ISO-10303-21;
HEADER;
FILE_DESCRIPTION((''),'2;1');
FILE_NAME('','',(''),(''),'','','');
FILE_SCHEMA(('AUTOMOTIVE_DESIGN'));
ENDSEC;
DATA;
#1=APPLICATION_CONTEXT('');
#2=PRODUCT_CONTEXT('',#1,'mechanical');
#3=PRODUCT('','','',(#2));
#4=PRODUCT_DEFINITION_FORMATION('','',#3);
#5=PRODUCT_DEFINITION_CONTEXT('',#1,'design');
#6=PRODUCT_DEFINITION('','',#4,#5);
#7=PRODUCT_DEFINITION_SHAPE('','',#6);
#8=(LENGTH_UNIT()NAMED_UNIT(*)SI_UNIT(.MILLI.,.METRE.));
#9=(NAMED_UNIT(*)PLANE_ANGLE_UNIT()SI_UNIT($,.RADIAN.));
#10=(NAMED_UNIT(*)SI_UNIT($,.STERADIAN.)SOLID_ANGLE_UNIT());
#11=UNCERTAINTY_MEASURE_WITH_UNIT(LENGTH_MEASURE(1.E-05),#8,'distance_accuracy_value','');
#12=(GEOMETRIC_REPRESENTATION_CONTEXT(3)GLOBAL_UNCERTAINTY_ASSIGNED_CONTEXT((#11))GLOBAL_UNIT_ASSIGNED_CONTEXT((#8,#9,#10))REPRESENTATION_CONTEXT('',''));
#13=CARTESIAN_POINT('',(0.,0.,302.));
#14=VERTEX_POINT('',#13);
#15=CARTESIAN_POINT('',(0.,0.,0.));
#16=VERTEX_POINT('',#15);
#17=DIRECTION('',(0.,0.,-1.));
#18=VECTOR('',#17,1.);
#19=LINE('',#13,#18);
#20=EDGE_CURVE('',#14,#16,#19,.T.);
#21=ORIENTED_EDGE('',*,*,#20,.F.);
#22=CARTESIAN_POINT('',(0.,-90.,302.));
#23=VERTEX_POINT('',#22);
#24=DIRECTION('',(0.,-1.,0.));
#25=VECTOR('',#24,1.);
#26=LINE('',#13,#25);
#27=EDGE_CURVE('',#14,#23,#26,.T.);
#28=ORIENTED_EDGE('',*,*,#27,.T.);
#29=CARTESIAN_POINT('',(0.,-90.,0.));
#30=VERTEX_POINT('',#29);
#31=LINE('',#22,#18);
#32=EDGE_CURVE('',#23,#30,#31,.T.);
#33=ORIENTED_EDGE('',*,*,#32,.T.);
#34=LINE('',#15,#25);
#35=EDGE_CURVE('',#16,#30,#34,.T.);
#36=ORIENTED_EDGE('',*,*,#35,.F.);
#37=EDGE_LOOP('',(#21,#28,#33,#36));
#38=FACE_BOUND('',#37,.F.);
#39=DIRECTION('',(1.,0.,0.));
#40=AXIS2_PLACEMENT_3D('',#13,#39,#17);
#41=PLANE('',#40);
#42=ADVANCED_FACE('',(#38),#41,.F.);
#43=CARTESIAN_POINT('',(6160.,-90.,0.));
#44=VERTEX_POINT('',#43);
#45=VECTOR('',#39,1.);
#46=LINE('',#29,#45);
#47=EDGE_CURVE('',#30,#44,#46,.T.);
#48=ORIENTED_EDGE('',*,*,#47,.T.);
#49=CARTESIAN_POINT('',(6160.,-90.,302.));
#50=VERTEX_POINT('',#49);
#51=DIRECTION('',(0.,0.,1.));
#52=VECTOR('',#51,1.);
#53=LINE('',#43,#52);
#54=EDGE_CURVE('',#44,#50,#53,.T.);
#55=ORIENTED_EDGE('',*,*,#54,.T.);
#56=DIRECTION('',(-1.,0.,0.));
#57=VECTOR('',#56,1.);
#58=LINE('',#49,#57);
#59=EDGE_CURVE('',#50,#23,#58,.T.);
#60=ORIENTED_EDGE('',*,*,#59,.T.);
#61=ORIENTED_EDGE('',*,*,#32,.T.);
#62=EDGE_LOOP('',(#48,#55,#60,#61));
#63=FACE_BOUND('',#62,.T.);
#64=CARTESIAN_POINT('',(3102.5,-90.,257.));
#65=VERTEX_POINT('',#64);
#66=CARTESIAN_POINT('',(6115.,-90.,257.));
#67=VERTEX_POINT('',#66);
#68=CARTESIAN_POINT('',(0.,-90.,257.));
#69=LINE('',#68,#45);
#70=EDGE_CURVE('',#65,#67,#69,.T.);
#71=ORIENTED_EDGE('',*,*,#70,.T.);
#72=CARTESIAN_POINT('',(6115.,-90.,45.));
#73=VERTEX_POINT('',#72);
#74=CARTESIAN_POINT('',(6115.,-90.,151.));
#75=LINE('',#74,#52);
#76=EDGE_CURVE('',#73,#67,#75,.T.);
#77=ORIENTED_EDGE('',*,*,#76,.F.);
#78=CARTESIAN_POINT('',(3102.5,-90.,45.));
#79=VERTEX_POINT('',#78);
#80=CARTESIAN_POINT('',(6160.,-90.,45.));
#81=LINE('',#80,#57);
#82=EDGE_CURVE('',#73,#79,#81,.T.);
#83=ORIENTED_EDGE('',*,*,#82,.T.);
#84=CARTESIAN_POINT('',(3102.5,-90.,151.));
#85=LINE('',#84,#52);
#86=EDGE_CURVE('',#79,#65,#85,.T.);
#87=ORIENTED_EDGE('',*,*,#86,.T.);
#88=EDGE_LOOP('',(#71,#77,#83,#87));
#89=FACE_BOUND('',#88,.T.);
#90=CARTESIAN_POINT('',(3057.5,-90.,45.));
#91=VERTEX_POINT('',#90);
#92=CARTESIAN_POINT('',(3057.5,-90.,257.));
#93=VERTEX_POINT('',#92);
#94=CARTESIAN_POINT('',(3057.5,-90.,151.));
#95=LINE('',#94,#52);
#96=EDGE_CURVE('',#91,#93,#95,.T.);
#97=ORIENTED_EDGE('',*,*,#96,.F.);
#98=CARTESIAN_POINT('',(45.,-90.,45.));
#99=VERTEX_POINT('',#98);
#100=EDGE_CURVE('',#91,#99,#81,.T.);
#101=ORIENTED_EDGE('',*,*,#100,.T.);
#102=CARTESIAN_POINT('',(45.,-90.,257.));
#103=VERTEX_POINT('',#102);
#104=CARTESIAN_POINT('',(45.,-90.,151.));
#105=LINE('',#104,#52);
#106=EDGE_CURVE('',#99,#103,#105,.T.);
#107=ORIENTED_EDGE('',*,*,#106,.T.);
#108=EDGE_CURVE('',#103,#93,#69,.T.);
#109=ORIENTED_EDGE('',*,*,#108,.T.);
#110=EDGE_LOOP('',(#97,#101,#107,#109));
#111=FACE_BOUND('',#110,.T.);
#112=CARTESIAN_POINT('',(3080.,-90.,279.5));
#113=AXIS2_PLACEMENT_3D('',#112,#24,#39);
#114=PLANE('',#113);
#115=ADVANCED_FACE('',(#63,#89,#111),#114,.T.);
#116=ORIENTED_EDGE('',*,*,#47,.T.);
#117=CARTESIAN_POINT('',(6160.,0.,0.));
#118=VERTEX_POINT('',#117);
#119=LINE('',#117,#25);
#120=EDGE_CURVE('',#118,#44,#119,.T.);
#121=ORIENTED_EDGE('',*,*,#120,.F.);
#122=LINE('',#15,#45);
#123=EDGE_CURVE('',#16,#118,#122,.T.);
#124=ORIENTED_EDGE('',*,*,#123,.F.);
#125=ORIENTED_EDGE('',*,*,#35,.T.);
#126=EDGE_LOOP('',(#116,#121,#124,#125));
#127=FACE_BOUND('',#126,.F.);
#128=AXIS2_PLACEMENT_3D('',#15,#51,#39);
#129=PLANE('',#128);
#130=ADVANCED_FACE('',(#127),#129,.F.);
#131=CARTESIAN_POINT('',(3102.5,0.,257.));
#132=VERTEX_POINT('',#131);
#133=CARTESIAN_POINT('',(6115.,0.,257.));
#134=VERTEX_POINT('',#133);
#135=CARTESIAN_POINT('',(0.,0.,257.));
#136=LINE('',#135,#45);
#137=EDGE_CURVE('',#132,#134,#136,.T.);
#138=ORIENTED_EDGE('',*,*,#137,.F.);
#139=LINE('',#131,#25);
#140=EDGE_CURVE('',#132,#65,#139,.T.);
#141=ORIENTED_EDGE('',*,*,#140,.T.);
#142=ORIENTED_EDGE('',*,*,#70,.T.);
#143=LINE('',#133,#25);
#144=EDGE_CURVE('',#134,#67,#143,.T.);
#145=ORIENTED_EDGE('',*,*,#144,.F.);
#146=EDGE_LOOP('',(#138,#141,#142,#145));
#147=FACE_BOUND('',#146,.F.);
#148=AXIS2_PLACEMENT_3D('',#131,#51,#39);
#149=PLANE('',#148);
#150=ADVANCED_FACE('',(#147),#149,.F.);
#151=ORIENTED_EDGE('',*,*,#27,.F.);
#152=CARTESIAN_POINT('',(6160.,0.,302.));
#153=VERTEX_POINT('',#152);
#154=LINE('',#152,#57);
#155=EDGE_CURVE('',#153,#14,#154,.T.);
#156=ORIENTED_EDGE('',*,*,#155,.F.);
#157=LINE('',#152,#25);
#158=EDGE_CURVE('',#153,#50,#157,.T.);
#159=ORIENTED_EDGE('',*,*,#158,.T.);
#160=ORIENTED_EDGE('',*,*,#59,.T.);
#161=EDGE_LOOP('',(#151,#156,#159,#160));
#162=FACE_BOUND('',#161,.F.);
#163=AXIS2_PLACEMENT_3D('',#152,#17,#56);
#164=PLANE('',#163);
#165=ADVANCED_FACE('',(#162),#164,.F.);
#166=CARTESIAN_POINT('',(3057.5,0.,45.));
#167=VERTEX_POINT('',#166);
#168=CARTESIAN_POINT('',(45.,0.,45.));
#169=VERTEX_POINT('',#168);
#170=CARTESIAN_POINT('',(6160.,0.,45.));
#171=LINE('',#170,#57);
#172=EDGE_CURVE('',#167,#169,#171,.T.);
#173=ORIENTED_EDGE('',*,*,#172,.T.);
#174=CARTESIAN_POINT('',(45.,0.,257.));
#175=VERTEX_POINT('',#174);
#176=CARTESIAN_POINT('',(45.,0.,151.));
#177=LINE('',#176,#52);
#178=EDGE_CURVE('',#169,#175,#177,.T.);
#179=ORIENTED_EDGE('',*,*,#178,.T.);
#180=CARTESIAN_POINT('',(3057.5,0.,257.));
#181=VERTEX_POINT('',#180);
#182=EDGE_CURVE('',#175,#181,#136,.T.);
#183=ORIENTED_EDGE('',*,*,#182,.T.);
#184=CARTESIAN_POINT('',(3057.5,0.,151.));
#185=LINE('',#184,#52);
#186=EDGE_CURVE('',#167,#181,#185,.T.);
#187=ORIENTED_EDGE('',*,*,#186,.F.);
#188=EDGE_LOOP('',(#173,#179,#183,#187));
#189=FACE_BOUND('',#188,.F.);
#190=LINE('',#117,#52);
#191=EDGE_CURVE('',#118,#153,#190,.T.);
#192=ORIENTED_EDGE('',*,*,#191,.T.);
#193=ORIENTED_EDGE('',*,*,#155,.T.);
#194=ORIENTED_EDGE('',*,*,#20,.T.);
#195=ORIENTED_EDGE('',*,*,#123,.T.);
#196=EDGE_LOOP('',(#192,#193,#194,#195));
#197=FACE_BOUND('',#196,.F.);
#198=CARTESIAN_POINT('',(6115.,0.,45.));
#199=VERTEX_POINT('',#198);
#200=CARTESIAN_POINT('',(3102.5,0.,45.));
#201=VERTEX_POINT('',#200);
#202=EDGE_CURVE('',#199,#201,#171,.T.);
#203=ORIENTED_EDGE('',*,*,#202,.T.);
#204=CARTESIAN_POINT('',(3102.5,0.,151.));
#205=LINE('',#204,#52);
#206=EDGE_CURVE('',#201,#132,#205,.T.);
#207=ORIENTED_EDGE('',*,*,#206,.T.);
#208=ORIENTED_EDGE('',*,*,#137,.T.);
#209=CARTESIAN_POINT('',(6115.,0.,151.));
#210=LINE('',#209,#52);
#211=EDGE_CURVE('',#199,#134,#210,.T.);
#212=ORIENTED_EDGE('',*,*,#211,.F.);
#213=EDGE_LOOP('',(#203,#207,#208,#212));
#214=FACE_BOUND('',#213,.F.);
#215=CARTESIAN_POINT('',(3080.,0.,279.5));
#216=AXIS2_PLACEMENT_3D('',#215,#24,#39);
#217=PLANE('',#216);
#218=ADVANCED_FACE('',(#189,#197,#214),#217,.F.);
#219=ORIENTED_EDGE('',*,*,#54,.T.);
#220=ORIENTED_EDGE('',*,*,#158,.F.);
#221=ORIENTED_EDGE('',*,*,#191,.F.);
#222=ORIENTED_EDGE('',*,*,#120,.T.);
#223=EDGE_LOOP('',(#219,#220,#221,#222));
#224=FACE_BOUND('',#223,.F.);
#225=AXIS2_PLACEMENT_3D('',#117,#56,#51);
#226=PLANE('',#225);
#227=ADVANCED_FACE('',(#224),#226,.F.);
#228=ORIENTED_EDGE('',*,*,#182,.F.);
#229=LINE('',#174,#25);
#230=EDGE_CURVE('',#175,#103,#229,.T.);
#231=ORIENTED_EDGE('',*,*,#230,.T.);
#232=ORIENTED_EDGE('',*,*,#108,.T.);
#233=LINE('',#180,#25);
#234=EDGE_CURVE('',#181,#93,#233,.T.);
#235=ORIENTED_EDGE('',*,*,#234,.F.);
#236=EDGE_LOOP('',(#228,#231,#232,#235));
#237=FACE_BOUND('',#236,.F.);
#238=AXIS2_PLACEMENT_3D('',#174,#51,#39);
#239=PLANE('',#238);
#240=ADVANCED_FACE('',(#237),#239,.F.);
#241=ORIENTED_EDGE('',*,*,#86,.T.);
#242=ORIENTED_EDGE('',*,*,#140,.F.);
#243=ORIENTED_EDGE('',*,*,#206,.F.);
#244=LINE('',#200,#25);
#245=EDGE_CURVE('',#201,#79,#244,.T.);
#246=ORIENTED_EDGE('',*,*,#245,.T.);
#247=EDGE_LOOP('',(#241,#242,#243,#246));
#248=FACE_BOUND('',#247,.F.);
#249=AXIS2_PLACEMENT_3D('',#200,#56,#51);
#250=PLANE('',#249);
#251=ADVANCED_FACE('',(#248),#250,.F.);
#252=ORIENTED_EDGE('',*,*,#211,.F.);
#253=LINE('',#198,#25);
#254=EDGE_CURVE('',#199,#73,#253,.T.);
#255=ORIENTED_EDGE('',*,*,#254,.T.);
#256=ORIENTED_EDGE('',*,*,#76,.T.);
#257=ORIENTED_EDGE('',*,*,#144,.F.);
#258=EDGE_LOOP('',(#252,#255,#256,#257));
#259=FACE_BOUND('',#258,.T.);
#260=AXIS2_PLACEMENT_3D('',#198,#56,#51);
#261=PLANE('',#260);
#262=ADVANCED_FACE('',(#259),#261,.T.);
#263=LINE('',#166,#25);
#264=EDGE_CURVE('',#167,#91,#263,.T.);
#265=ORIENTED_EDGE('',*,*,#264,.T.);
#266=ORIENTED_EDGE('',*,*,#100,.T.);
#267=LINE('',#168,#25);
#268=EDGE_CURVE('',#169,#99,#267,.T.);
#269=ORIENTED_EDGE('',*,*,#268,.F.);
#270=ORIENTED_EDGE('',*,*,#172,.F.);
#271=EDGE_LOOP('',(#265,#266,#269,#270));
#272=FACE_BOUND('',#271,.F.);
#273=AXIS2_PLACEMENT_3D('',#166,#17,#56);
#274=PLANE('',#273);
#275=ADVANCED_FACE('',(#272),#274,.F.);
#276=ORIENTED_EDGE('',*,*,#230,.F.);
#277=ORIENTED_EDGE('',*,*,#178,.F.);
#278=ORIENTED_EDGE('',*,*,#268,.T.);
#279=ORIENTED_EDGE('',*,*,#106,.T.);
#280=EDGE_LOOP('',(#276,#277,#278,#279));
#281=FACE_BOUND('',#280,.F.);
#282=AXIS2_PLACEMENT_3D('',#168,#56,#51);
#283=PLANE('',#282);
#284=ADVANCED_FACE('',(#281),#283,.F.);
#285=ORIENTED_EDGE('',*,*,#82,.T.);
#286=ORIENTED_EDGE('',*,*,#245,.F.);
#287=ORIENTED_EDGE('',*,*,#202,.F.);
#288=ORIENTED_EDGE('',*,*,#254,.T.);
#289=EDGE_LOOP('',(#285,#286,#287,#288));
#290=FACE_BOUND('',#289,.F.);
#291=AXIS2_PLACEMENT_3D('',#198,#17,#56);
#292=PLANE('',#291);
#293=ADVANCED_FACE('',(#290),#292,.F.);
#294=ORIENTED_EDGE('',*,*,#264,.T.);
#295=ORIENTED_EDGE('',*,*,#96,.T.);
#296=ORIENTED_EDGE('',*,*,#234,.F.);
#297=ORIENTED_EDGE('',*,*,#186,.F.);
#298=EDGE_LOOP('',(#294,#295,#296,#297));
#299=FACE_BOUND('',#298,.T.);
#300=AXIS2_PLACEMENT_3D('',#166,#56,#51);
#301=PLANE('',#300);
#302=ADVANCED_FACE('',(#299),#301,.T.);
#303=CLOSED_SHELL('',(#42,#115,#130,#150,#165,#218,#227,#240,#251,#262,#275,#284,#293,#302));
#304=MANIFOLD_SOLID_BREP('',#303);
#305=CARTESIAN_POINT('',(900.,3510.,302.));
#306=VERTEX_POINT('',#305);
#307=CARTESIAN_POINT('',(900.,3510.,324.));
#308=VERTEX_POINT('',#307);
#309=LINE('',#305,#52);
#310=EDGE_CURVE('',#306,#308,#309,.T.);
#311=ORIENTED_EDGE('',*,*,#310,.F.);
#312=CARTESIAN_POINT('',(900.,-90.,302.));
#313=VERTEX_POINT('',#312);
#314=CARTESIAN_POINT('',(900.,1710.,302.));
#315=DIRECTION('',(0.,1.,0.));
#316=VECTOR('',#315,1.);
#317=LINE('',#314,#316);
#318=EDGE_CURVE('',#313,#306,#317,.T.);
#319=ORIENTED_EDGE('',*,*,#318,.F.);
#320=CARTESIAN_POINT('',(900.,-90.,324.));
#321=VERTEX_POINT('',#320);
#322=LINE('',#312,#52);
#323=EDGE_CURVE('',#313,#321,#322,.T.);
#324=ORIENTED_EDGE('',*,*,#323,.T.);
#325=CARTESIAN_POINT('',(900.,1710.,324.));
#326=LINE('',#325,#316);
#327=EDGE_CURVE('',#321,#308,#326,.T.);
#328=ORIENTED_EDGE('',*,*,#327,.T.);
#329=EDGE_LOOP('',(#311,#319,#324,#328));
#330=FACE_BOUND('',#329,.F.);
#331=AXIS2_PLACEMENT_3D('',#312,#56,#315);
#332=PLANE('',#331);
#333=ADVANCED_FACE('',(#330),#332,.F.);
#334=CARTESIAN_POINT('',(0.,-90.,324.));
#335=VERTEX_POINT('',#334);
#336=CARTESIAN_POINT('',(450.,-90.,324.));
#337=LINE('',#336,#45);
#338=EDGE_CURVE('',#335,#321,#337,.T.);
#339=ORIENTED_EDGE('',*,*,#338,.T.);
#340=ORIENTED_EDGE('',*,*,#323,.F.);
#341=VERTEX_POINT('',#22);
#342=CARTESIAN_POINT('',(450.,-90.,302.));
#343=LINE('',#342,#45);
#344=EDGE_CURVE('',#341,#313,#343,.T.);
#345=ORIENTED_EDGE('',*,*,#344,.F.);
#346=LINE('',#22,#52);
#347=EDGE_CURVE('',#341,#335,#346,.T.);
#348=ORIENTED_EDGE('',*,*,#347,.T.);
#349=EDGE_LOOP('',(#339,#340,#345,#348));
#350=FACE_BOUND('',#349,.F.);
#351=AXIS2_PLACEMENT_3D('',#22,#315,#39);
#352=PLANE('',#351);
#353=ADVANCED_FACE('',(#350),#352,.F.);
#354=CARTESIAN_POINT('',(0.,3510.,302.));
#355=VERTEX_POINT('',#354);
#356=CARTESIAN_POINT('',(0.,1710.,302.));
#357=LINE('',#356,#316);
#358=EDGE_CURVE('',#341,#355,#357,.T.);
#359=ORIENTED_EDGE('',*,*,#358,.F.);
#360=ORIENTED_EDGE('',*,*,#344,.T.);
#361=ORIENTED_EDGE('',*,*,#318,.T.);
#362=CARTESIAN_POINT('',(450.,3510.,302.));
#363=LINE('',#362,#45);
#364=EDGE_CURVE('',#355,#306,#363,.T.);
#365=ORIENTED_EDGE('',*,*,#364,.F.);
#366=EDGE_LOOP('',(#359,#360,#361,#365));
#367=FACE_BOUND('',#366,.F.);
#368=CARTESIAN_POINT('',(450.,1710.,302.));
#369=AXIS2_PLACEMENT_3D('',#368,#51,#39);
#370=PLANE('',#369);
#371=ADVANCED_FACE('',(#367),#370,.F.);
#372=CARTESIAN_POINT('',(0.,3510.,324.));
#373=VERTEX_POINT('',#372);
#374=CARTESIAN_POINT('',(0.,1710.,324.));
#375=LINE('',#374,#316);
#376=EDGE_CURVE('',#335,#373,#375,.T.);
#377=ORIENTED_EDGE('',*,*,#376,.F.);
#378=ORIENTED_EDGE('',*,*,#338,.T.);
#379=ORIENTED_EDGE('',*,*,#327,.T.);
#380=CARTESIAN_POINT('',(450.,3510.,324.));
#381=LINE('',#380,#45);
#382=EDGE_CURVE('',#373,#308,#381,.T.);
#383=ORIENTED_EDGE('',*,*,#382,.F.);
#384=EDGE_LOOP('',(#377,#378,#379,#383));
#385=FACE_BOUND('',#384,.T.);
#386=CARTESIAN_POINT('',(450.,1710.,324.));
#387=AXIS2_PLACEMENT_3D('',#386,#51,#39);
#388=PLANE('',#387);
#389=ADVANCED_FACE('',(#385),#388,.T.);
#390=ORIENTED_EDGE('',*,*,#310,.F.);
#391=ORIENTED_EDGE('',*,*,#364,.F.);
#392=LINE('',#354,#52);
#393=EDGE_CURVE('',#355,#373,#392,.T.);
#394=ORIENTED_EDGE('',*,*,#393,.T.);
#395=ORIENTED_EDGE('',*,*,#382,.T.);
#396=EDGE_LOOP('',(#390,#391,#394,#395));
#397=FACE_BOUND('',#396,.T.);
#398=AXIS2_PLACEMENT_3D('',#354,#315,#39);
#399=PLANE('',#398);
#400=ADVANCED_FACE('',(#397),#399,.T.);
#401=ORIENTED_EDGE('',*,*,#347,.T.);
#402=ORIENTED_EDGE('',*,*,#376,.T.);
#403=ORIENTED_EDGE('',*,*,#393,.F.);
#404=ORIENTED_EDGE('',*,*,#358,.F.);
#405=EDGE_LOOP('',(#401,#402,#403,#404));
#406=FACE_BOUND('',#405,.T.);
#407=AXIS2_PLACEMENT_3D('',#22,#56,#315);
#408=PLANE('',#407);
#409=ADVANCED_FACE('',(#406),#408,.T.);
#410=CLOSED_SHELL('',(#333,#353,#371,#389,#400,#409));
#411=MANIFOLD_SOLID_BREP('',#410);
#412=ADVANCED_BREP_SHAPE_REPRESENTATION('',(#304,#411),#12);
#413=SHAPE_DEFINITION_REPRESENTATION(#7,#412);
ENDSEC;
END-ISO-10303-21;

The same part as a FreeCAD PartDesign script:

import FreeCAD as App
import Part
import Sketcher

V = App.Vector
Q = App.Units.Quantity

doc = App.newDocument("Part")
body = doc.addObject("PartDesign::Body", "Body")

sketch1 = body.newObject("Sketcher::SketchObject", "Sketch")
sketch1.AttachmentSupport = (doc.getObject("XZ_Plane"), [""])
sketch1.MapMode = "FlatFace"
sketch1.addGeometry(Part.LineSegment(V(0, 302, 0), V(0, 0, 0)), False)
sketch1.addGeometry(Part.LineSegment(V(0, 0, 0), V(6160, 0, 0)), False)
sketch1.addGeometry(Part.LineSegment(V(6160, 0, 0), V(6160, 302, 0)), False)
sketch1.addGeometry(Part.LineSegment(V(6160, 302, 0), V(0, 302, 0)), False)
sketch1.addGeometry(Part.LineSegment(V(6115, 45, 0), V(3102.5, 45, 0)), False)
sketch1.addGeometry(Part.LineSegment(V(3102.5, 45, 0), V(3102.5, 257, 0)), False)
sketch1.addGeometry(Part.LineSegment(V(3102.5, 257, 0), V(6115, 257, 0)), False)
sketch1.addGeometry(Part.LineSegment(V(6115, 257, 0), V(6115, 45, 0)), False)
sketch1.addGeometry(Part.LineSegment(V(3057.5, 45, 0), V(45, 45, 0)), False)
sketch1.addGeometry(Part.LineSegment(V(45, 45, 0), V(45, 257, 0)), False)
sketch1.addGeometry(Part.LineSegment(V(45, 257, 0), V(3057.5, 257, 0)), False)
sketch1.addGeometry(Part.LineSegment(V(3057.5, 257, 0), V(3057.5, 45, 0)), False)
sketch1.addConstraint(Sketcher.Constraint("Coincident", 0, 2, 1, 1))
sketch1.addConstraint(Sketcher.Constraint("Coincident", 1, 2, 2, 1))
sketch1.addConstraint(Sketcher.Constraint("Coincident", 2, 2, 3, 1))
sketch1.addConstraint(Sketcher.Constraint("Coincident", 3, 2, 0, 1))
sketch1.addConstraint(Sketcher.Constraint("Coincident", 4, 2, 5, 1))
sketch1.addConstraint(Sketcher.Constraint("Coincident", 5, 2, 6, 1))
sketch1.addConstraint(Sketcher.Constraint("Coincident", 6, 2, 7, 1))
sketch1.addConstraint(Sketcher.Constraint("Coincident", 7, 2, 4, 1))
sketch1.addConstraint(Sketcher.Constraint("Coincident", 8, 2, 9, 1))
sketch1.addConstraint(Sketcher.Constraint("Coincident", 9, 2, 10, 1))
sketch1.addConstraint(Sketcher.Constraint("Coincident", 10, 2, 11, 1))
sketch1.addConstraint(Sketcher.Constraint("Coincident", 11, 2, 8, 1))
sketch1.addConstraint(Sketcher.Constraint("Vertical", 0))
sketch1.addConstraint(Sketcher.Constraint("Horizontal", 1))
sketch1.addConstraint(Sketcher.Constraint("Vertical", 2))
sketch1.addConstraint(Sketcher.Constraint("Horizontal", 3))
sketch1.addConstraint(Sketcher.Constraint("Horizontal", 4))
sketch1.addConstraint(Sketcher.Constraint("Vertical", 5))
sketch1.addConstraint(Sketcher.Constraint("Horizontal", 6))
sketch1.addConstraint(Sketcher.Constraint("Vertical", 7))
sketch1.addConstraint(Sketcher.Constraint("Horizontal", 8))
sketch1.addConstraint(Sketcher.Constraint("Vertical", 9))
sketch1.addConstraint(Sketcher.Constraint("Horizontal", 10))
sketch1.addConstraint(Sketcher.Constraint("Vertical", 11))
sketch1.addConstraint(Sketcher.Constraint("Coincident", 0, 2, -1, 1))
sketch1.addConstraint(Sketcher.Constraint("Horizontal", 7, 2, 8, 2))
sketch1.addConstraint(Sketcher.Constraint("Horizontal", 6, 2, 9, 2))
sketch1.addConstraint(Sketcher.Constraint("Equal", 6, 8))
sketch1.addConstraint(Sketcher.Constraint("DistanceX", 1, 1, 1, 2, Q("6160 mm")))
sketch1.addConstraint(Sketcher.Constraint("DistanceY", 0, 2, 0, 1, Q("302 mm")))
sketch1.addConstraint(Sketcher.Constraint("DistanceY", 5, 1, 5, 2, Q("212 mm")))
sketch1.addConstraint(Sketcher.Constraint("DistanceX", 4, 2, 4, 1, Q("3012.5 mm")))
sketch1.addConstraint(Sketcher.Constraint("DistanceY", -1, 1, 4, 2, Q("45 mm")))
sketch1.addConstraint(Sketcher.Constraint("DistanceX", -1, 1, 6, 2, Q("6115 mm")))
sketch1.addConstraint(Sketcher.Constraint("DistanceX", -1, 1, 8, 2, Q("45 mm")))
pad1 = body.newObject("PartDesign::Pad", "Pad")
pad1.Profile = sketch1
pad1.Length = 90
body2 = doc.addObject("PartDesign::Body", "Body001")

sketch2 = body2.newObject("Sketcher::SketchObject", "Sketch001")
sketch2.AttachmentSupport = (doc.getObject("XY_Plane001"), [""])
sketch2.MapMode = "FlatFace"
sketch2.AttachmentOffset = App.Placement(V(0, 0, 302), App.Rotation())
sketch2.addGeometry(Part.LineSegment(V(0, 3510, 0), V(0, -90, 0)), False)
sketch2.addGeometry(Part.LineSegment(V(0, -90, 0), V(900, -90, 0)), False)
sketch2.addGeometry(Part.LineSegment(V(900, -90, 0), V(900, 3510, 0)), False)
sketch2.addGeometry(Part.LineSegment(V(900, 3510, 0), V(0, 3510, 0)), False)
sketch2.addConstraint(Sketcher.Constraint("Coincident", 0, 2, 1, 1))
sketch2.addConstraint(Sketcher.Constraint("Coincident", 1, 2, 2, 1))
sketch2.addConstraint(Sketcher.Constraint("Coincident", 2, 2, 3, 1))
sketch2.addConstraint(Sketcher.Constraint("Coincident", 3, 2, 0, 1))
sketch2.addConstraint(Sketcher.Constraint("Vertical", 0))
sketch2.addConstraint(Sketcher.Constraint("Horizontal", 1))
sketch2.addConstraint(Sketcher.Constraint("Vertical", 2))
sketch2.addConstraint(Sketcher.Constraint("Horizontal", 3))
sketch2.addConstraint(Sketcher.Constraint("PointOnObject", 0, 2, -2))
sketch2.addConstraint(Sketcher.Constraint("DistanceX", 1, 1, 1, 2, Q("900 mm")))
sketch2.addConstraint(Sketcher.Constraint("DistanceY", 0, 2, 0, 1, Q("3600 mm")))
sketch2.addConstraint(Sketcher.Constraint("DistanceY", 0, 2, -1, 1, Q("90 mm")))
pad2 = body2.newObject("PartDesign::Pad", "Pad001")
pad2.Profile = sketch2
pad2.Length = 22

doc.recompute()
